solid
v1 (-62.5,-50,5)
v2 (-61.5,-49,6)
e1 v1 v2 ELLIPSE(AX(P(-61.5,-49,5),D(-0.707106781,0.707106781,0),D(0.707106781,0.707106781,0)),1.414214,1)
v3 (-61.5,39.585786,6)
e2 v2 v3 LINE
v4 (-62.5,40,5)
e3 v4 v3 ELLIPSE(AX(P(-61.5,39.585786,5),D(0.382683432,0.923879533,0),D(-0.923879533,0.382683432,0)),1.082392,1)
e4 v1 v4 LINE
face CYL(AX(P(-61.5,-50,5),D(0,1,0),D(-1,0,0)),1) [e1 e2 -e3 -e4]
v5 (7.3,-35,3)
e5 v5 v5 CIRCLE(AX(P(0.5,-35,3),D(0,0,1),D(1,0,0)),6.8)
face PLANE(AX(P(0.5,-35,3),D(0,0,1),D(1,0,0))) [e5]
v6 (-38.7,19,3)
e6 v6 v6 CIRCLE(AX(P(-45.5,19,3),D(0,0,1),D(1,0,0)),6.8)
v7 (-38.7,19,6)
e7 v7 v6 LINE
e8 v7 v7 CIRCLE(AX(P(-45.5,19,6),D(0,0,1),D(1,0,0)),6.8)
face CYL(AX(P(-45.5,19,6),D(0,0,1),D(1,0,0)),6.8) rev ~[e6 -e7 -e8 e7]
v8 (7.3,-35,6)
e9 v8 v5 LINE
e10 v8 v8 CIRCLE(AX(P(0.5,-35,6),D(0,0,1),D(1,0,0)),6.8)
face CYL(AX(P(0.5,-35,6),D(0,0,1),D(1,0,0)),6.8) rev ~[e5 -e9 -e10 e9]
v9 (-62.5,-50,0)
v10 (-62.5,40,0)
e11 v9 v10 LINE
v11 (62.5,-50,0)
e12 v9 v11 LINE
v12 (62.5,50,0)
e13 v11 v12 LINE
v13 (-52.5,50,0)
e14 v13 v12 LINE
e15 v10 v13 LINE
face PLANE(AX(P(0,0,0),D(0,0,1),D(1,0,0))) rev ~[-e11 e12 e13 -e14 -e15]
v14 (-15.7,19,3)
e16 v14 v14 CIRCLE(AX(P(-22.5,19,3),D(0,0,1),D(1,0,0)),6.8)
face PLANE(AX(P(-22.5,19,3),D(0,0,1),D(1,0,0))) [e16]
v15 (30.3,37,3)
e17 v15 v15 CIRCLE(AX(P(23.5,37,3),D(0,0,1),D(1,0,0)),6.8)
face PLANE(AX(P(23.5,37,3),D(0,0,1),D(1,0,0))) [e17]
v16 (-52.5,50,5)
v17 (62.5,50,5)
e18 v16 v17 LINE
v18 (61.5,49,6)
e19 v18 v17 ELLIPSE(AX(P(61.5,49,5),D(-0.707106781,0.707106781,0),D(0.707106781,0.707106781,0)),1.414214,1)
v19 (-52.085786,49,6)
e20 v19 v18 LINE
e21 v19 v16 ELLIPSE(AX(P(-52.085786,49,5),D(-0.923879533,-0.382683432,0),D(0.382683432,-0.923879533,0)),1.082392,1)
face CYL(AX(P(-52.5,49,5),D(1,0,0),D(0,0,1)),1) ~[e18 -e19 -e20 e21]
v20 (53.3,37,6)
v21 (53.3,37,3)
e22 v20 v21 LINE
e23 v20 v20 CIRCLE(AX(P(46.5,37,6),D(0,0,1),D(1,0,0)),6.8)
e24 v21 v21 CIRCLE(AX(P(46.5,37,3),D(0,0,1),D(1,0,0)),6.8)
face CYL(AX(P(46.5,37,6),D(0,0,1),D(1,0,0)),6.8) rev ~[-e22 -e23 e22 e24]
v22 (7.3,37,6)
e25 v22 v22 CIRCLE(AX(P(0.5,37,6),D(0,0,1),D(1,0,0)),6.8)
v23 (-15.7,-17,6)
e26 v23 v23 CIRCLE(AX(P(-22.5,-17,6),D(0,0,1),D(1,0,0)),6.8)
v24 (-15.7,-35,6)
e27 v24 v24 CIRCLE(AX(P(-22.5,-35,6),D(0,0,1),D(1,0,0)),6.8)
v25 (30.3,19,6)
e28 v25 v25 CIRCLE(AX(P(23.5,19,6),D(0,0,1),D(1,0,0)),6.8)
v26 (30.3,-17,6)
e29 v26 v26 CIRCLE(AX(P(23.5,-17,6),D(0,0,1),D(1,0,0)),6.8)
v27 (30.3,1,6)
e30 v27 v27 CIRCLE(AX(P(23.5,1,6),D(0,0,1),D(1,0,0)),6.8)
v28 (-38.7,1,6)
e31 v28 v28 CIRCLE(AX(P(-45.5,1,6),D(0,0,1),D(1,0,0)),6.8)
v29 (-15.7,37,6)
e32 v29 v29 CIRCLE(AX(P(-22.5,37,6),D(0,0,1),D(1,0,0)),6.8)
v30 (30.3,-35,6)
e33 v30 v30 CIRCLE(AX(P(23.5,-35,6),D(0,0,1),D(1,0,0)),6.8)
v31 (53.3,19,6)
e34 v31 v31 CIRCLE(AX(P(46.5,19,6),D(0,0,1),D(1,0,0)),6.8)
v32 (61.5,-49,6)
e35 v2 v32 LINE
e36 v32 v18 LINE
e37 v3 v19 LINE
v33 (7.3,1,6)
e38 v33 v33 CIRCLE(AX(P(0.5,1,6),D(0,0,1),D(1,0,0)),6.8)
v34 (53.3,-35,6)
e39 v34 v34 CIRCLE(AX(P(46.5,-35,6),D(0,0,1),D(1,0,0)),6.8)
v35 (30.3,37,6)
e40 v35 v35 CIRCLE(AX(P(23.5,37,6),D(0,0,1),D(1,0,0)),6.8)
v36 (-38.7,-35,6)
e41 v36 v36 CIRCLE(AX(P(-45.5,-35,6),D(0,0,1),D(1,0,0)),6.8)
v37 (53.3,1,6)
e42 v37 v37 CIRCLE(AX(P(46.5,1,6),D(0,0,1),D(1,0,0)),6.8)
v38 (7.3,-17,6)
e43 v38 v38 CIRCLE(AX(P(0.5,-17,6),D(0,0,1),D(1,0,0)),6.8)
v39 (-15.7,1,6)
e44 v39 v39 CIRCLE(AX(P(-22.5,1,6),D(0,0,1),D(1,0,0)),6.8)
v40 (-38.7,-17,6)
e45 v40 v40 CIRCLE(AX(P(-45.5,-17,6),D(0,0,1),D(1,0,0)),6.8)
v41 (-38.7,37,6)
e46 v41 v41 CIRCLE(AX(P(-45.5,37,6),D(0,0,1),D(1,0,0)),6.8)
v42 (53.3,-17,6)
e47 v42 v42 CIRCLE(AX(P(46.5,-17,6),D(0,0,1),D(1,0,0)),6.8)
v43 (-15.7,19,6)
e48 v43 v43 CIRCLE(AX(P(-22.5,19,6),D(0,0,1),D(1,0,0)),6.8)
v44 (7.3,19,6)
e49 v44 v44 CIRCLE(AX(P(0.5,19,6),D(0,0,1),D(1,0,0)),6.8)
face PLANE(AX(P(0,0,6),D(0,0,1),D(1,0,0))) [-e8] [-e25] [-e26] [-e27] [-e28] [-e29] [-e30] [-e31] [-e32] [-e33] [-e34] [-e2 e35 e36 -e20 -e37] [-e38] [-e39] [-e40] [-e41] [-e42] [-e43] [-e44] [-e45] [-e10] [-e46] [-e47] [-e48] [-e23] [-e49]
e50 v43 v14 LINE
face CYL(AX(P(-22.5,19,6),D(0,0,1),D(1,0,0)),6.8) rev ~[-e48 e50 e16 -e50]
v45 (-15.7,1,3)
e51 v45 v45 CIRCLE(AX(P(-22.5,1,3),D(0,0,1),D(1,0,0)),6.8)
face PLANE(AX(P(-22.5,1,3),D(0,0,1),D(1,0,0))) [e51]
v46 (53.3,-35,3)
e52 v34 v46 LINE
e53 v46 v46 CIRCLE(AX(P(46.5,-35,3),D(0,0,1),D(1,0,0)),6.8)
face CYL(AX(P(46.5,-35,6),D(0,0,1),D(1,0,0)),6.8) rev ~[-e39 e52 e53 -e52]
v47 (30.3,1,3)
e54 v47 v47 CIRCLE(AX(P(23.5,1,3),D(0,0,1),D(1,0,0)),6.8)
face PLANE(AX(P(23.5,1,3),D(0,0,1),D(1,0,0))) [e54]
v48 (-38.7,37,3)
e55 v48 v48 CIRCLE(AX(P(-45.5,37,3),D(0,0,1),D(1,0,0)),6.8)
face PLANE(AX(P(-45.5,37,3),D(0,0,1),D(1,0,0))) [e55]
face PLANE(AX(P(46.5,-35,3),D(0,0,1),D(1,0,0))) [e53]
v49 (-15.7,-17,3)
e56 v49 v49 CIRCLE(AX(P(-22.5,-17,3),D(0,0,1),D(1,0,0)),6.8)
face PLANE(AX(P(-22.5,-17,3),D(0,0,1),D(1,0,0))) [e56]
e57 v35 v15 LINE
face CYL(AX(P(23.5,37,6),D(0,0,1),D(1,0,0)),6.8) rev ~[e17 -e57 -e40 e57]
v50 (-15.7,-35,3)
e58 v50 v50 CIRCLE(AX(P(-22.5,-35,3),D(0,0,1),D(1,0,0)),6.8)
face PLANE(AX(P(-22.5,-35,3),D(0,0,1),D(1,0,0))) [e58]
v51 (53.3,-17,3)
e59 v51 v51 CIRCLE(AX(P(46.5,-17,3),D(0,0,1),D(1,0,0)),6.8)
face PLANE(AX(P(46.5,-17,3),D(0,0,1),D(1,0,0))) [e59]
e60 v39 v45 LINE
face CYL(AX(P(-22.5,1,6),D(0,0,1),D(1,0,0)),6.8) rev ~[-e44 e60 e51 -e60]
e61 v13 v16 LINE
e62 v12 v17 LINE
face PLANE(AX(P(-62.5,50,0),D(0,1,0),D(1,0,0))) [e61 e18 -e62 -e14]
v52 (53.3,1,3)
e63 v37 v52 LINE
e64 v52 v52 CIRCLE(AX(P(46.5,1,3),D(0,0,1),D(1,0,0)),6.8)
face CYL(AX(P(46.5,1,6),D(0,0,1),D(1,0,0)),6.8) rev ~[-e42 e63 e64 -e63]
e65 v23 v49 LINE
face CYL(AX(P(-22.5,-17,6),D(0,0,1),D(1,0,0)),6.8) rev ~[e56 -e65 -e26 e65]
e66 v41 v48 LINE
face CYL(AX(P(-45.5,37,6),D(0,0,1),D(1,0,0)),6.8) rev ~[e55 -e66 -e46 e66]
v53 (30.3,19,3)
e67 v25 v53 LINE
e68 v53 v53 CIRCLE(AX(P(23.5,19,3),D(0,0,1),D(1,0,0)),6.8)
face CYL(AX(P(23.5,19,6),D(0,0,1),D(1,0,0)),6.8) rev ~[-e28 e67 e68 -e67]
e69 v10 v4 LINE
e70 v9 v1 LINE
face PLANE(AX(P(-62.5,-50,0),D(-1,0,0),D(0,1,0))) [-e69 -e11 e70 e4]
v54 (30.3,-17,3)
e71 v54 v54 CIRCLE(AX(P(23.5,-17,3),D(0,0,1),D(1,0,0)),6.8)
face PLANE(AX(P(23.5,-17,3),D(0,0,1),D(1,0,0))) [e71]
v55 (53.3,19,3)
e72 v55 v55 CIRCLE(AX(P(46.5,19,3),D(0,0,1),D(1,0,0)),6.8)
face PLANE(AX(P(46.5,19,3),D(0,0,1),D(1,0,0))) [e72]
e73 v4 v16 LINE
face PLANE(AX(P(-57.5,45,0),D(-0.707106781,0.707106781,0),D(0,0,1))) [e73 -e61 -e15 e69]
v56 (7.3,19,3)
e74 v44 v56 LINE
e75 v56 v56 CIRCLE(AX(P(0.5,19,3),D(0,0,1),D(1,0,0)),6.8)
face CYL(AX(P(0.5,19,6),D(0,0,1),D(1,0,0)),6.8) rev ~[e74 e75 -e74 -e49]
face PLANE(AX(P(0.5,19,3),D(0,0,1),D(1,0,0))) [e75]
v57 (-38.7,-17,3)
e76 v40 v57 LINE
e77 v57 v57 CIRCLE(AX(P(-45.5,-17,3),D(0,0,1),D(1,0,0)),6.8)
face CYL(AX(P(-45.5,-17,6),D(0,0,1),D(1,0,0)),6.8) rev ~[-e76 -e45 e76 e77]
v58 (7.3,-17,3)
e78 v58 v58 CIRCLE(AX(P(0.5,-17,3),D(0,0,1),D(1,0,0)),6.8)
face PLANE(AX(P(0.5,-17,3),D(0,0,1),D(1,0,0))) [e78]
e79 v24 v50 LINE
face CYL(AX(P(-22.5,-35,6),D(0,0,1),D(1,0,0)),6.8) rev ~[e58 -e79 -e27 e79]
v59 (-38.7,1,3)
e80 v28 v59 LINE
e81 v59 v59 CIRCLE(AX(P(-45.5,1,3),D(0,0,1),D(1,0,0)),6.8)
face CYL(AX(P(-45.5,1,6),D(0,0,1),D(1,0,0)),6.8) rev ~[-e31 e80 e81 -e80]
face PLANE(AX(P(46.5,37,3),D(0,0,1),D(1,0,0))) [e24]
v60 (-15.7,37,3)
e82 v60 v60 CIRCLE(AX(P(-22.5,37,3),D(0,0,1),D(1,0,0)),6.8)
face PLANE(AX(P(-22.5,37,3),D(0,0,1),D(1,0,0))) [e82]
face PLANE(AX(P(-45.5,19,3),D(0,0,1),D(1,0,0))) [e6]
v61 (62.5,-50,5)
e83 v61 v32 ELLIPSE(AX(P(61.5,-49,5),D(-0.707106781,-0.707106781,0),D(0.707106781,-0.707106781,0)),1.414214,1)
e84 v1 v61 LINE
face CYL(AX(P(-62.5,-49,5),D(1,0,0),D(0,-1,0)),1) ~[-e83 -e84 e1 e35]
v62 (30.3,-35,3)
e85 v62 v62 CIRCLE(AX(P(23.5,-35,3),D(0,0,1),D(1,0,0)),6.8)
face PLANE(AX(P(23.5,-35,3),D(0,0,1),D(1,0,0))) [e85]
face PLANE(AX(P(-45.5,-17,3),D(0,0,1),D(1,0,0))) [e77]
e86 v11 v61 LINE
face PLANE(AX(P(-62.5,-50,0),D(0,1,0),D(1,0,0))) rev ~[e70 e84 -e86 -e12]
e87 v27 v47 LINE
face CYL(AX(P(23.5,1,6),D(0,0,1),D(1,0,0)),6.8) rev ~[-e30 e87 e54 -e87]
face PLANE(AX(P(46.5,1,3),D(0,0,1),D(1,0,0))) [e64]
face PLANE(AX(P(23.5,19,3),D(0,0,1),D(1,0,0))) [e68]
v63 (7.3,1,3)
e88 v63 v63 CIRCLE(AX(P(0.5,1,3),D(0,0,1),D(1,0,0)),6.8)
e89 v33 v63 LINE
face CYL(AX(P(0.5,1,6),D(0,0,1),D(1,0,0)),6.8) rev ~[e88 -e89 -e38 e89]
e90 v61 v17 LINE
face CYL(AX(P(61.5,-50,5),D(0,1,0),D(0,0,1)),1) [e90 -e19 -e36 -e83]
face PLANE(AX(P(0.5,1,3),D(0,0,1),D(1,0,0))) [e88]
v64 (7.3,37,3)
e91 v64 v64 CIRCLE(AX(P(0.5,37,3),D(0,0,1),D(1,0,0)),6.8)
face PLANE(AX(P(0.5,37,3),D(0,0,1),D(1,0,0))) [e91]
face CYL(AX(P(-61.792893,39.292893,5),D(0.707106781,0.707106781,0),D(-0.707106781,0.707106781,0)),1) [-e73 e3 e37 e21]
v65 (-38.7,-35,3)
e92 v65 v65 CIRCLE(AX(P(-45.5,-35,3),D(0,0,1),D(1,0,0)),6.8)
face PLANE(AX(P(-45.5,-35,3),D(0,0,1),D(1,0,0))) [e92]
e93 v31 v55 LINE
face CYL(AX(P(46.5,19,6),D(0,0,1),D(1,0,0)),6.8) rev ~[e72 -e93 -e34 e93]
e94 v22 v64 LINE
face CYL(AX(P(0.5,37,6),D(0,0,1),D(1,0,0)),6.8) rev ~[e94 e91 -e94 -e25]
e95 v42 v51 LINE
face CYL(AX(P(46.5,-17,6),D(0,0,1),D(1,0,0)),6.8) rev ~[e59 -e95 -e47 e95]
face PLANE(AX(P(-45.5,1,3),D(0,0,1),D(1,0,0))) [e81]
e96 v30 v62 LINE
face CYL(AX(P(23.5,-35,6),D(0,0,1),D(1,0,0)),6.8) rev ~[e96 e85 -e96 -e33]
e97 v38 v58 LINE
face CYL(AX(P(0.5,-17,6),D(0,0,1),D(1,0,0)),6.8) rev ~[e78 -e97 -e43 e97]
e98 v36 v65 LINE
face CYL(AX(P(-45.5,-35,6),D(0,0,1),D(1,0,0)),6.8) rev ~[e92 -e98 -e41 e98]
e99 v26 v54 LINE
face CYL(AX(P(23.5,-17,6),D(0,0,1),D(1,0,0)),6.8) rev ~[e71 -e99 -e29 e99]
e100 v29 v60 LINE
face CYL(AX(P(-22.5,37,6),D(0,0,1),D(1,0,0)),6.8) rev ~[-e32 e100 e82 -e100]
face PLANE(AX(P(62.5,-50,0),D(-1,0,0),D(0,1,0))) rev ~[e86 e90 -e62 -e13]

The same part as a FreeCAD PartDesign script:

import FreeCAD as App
import Part
import Sketcher

V = App.Vector


def edges_at(feature, points):
    """Names of the edges that pass closest to the given points."""
    edges = feature.Shape.Edges
    near = lambda p: min(range(len(edges)), key=lambda i: edges[i].distToShape(Part.Vertex(*p))[0])
    return sorted({f"Edge{near(p) + 1}" for p in points})

doc = App.newDocument("Part")
body = doc.addObject("PartDesign::Body", "Body")

sketch1 = doc.addObject("Sketcher::SketchObject", "Sketch")
body.addObject(sketch1)
sketch1.AttachmentSupport = (doc.XY_Plane, [""])
sketch1.MapMode = "FlatFace"
sketch1.addGeometry(Part.LineSegment(V(-62, 50, 0), V(-62, -50, 0)), False)
sketch1.addGeometry(Part.LineSegment(V(-62, -50, 0), V(62, -50, 0)), False)
sketch1.addGeometry(Part.LineSegment(V(62, -50, 0), V(62, 50, 0)), False)
sketch1.addGeometry(Part.LineSegment(V(62, 50, 0), V(-62, 50, 0)), False)
sketch1.addConstraint(Sketcher.Constraint("Coincident", 0, 2, 1, 1))
sketch1.addConstraint(Sketcher.Constraint("Coincident", 1, 2, 2, 1))
sketch1.addConstraint(Sketcher.Constraint("Coincident", 2, 2, 3, 1))
sketch1.addConstraint(Sketcher.Constraint("Coincident", 3, 2, 0, 1))
sketch1.addConstraint(Sketcher.Constraint("Vertical", 0))
sketch1.addConstraint(Sketcher.Constraint("Horizontal", 1))
sketch1.addConstraint(Sketcher.Constraint("Vertical", 2))
sketch1.addConstraint(Sketcher.Constraint("Horizontal", 3))
sketch1.addConstraint(Sketcher.Constraint("Symmetric", 0, 2, 2, 2, -1, 1))
sketch1.addConstraint(Sketcher.Constraint("DistanceX", 1, 1, 1, 2, 125.0))
sketch1.addConstraint(Sketcher.Constraint("DistanceY", 0, 2, 0, 1, 100.0))
pad1 = doc.addObject("PartDesign::Pad", "Pad")
body.addObject(pad1)
pad1.Profile = sketch1
pad1.Length = 6
doc.recompute()

chamfer = doc.addObject("PartDesign::Chamfer", "Chamfer")
body.addObject(chamfer)
chamfer.Base = (pad1, edges_at(pad1, [(-62.5, 50, 3)]))
chamfer.Size = 10
doc.recompute()

fillet = doc.addObject("PartDesign::Fillet", "Fillet")
body.addObject(fillet)
fillet.Base = (chamfer, edges_at(chamfer, [
    (-62.5, -5, 6),
    (0, -50, 6),
    (62.5, 0, 6),
    (5, 50, 6),
    (-57.5, 45, 6),
]))
fillet.Radius = 1

sketch2 = doc.addObject("Sketcher::SketchObject", "Sketch001")
body.addObject(sketch2)
sketch2.AttachmentSupport = (doc.XY_Plane, [""])
sketch2.MapMode = "FlatFace"
sketch2.AttachmentOffset = App.Placement(V(0, 0, 6), App.Rotation())
sketch2.addGeometry(Part.Circle(V(46, 37, 0), V(0, 0, 1), 7), False)
sketch2.addGeometry(Part.Circle(V(46, 19, 0), V(0, 0, 1), 7), False)
sketch2.addGeometry(Part.Circle(V(24, 37, 0), V(0, 0, 1), 7), False)
sketch2.addGeometry(Part.Circle(V(24, 19, 0), V(0, 0, 1), 7), False)
sketch2.addGeometry(Part.Circle(V(0, 37, 0), V(0, 0, 1), 7), False)
sketch2.addGeometry(Part.Circle(V(0, 19, 0), V(0, 0, 1), 7), False)
sketch2.addGeometry(Part.Circle(V(46, 1, 0), V(0, 0, 1), 7), False)
sketch2.addGeometry(Part.Circle(V(46, -17, 0), V(0, 0, 1), 7), False)
sketch2.addGeometry(Part.Circle(V(24, 1, 0), V(0, 0, 1), 7), False)
sketch2.addGeometry(Part.Circle(V(24, -17, 0), V(0, 0, 1), 7), False)
sketch2.addGeometry(Part.Circle(V(0, 1, 0), V(0, 0, 1), 7), False)
sketch2.addGeometry(Part.Circle(V(0, -17, 0), V(0, 0, 1), 7), False)
sketch2.addGeometry(Part.Circle(V(-22, 37, 0), V(0, 0, 1), 7), False)
sketch2.addGeometry(Part.Circle(V(-22, 19, 0), V(0, 0, 1), 7), False)
sketch2.addGeometry(Part.Circle(V(-22, 1, 0), V(0, 0, 1), 7), False)
sketch2.addGeometry(Part.Circle(V(-22, -17, 0), V(0, 0, 1), 7), False)
sketch2.addGeometry(Part.Circle(V(-46, 37, 0), V(0, 0, 1), 7), False)
sketch2.addGeometry(Part.Circle(V(-46, 19, 0), V(0, 0, 1), 7), False)
sketch2.addGeometry(Part.Circle(V(-46, 1, 0), V(0, 0, 1), 7), False)
sketch2.addGeometry(Part.Circle(V(-46, -17, 0), V(0, 0, 1), 7), False)
sketch2.addGeometry(Part.Circle(V(46, -35, 0), V(0, 0, 1), 7), False)
sketch2.addGeometry(Part.Circle(V(24, -35, 0), V(0, 0, 1), 7), False)
sketch2.addGeometry(Part.Circle(V(0, -35, 0), V(0, 0, 1), 7), False)
sketch2.addGeometry(Part.Circle(V(-22, -35, 0), V(0, 0, 1), 7), False)
sketch2.addGeometry(Part.Circle(V(-46, -35, 0), V(0, 0, 1), 7), False)
sketch2.addConstraint(Sketcher.Constraint("Equal", 0, 1))
sketch2.addConstraint(Sketcher.Constraint("Equal", 1, 2))
sketch2.addConstraint(Sketcher.Constraint("Equal", 2, 3))
sketch2.addConstraint(Sketcher.Constraint("Equal", 3, 4))
sketch2.addConstraint(Sketcher.Constraint("Equal", 4, 5))
sketch2.addConstraint(Sketcher.Constraint("Equal", 5, 6))
sketch2.addConstraint(Sketcher.Constraint("Equal", 6, 7))
sketch2.addConstraint(Sketcher.Constraint("Equal", 7, 8))
sketch2.addConstraint(Sketcher.Constraint("Equal", 8, 9))
sketch2.addConstraint(Sketcher.Constraint("Equal", 9, 10))
sketch2.addConstraint(Sketcher.Constraint("Equal", 10, 11))
sketch2.addConstraint(Sketcher.Constraint("Equal", 11, 12))
sketch2.addConstraint(Sketcher.Constraint("Equal", 12, 13))
sketch2.addConstraint(Sketcher.Constraint("Equal", 13, 14))
sketch2.addConstraint(Sketcher.Constraint("Equal", 14, 15))
sketch2.addConstraint(Sketcher.Constraint("Equal", 15, 16))
sketch2.addConstraint(Sketcher.Constraint("Equal", 16, 17))
sketch2.addConstraint(Sketcher.Constraint("Equal", 17, 18))
sketch2.addConstraint(Sketcher.Constraint("Equal", 18, 19))
sketch2.addConstraint(Sketcher.Constraint("Equal", 19, 20))
sketch2.addConstraint(Sketcher.Constraint("Equal", 20, 21))
sketch2.addConstraint(Sketcher.Constraint("Equal", 21, 22))
sketch2.addConstraint(Sketcher.Constraint("Equal", 22, 23))
sketch2.addConstraint(Sketcher.Constraint("Equal", 23, 24))
sketch2.addConstraint(Sketcher.Constraint("Horizontal", 0, 3, 2, 3))
sketch2.addConstraint(Sketcher.Constraint("Horizontal", 1, 3, 3, 3))
sketch2.addConstraint(Sketcher.Constraint("Horizontal", 2, 3, 4, 3))
sketch2.addConstraint(Sketcher.Constraint("Horizontal", 3, 3, 5, 3))
sketch2.addConstraint(Sketcher.Constraint("Horizontal", 6, 3, 8, 3))
sketch2.addConstraint(Sketcher.Constraint("Horizontal", 7, 3, 9, 3))
sketch2.addConstraint(Sketcher.Constraint("Horizontal", 8, 3, 10, 3))
sketch2.addConstraint(Sketcher.Constraint("Horizontal", 9, 3, 11, 3))
sketch2.addConstraint(Sketcher.Constraint("Horizontal", 4, 3, 12, 3))
sketch2.addConstraint(Sketcher.Constraint("Horizontal", 5, 3, 13, 3))
sketch2.addConstraint(Sketcher.Constraint("Horizontal", 10, 3, 14, 3))
sketch2.addConstraint(Sketcher.Constraint("Horizontal", 11, 3, 15, 3))
sketch2.addConstraint(Sketcher.Constraint("Horizontal", 12, 3, 16, 3))
sketch2.addConstraint(Sketcher.Constraint("Horizontal", 13, 3, 17, 3))
sketch2.addConstraint(Sketcher.Constraint("Horizontal", 14, 3, 18, 3))
sketch2.addConstraint(Sketcher.Constraint("Horizontal", 15, 3, 19, 3))
sketch2.addConstraint(Sketcher.Constraint("Horizontal", 20, 3, 21, 3))
sketch2.addConstraint(Sketcher.Constraint("Horizontal", 21, 3, 22, 3))
sketch2.addConstraint(Sketcher.Constraint("Horizontal", 22, 3, 23, 3))
sketch2.addConstraint(Sketcher.Constraint("Horizontal", 23, 3, 24, 3))
sketch2.addConstraint(Sketcher.Constraint("Vertical", 0, 3, 1, 3))
sketch2.addConstraint(Sketcher.Constraint("Vertical", 2, 3, 3, 3))
sketch2.addConstraint(Sketcher.Constraint("Vertical", 4, 3, 5, 3))
sketch2.addConstraint(Sketcher.Constraint("Vertical", 1, 3, 6, 3))
sketch2.addConstraint(Sketcher.Constraint("Vertical", 6, 3, 7, 3))
sketch2.addConstraint(Sketcher.Constraint("Vertical", 3, 3, 8, 3))
sketch2.addConstraint(Sketcher.Constraint("Vertical", 8, 3, 9, 3))
sketch2.addConstraint(Sketcher.Constraint("Vertical", 5, 3, 10, 3))
sketch2.addConstraint(Sketcher.Constraint("Vertical", 10, 3, 11, 3))
sketch2.addConstraint(Sketcher.Constraint("Vertical", 12, 3, 13, 3))
sketch2.addConstraint(Sketcher.Constraint("Vertical", 13, 3, 14, 3))
sketch2.addConstraint(Sketcher.Constraint("Vertical", 14, 3, 15, 3))
sketch2.addConstraint(Sketcher.Constraint("Vertical", 16, 3, 17, 3))
sketch2.addConstraint(Sketcher.Constraint("Vertical", 17, 3, 18, 3))
sketch2.addConstraint(Sketcher.Constraint("Vertical", 18, 3, 19, 3))
sketch2.addConstraint(Sketcher.Constraint("Vertical", 7, 3, 20, 3))
sketch2.addConstraint(Sketcher.Constraint("Vertical", 9, 3, 21, 3))
sketch2.addConstraint(Sketcher.Constraint("Vertical", 11, 3, 22, 3))
sketch2.addConstraint(Sketcher.Constraint("Vertical", 15, 3, 23, 3))
sketch2.addConstraint(Sketcher.Constraint("Vertical", 19, 3, 24, 3))
sketch2.addConstraint(Sketcher.Constraint("Diameter", 0, 13.6))
sketch2.addConstraint(Sketcher.Constraint("DistanceY", -1, 1, 0, 3, 37.0))
sketch2.addConstraint(Sketcher.Constraint("DistanceY", -1, 1, 1, 3, 19.0))
sketch2.addConstraint(Sketcher.Constraint("DistanceY", -1, 1, 6, 3, 1.0))
sketch2.addConstraint(Sketcher.Constraint("DistanceY", 7, 3, -1, 1, 17.0))
sketch2.addConstraint(Sketcher.Constraint("DistanceY", 20, 3, -1, 1, 35.0))
sketch2.addConstraint(Sketcher.Constraint("DistanceX", 2, 3, 0, 3, 23.0))
sketch2.addConstraint(Sketcher.Constraint("DistanceX", 4, 3, 2, 3, 23.0))
sketch2.addConstraint(Sketcher.Constraint("DistanceX", 12, 3, 4, 3, 23.0))
sketch2.addConstraint(Sketcher.Constraint("DistanceX", 16, 3, 12, 3, 23.0))
sketch2.addConstraint(Sketcher.Constraint("DistanceX", -1, 1, 0, 3, 46.5))
pocket1 = doc.addObject("PartDesign::Pocket", "Pocket")
body.addObject(pocket1)
pocket1.Profile = sketch2
pocket1.Length = 3

doc.recompute()
